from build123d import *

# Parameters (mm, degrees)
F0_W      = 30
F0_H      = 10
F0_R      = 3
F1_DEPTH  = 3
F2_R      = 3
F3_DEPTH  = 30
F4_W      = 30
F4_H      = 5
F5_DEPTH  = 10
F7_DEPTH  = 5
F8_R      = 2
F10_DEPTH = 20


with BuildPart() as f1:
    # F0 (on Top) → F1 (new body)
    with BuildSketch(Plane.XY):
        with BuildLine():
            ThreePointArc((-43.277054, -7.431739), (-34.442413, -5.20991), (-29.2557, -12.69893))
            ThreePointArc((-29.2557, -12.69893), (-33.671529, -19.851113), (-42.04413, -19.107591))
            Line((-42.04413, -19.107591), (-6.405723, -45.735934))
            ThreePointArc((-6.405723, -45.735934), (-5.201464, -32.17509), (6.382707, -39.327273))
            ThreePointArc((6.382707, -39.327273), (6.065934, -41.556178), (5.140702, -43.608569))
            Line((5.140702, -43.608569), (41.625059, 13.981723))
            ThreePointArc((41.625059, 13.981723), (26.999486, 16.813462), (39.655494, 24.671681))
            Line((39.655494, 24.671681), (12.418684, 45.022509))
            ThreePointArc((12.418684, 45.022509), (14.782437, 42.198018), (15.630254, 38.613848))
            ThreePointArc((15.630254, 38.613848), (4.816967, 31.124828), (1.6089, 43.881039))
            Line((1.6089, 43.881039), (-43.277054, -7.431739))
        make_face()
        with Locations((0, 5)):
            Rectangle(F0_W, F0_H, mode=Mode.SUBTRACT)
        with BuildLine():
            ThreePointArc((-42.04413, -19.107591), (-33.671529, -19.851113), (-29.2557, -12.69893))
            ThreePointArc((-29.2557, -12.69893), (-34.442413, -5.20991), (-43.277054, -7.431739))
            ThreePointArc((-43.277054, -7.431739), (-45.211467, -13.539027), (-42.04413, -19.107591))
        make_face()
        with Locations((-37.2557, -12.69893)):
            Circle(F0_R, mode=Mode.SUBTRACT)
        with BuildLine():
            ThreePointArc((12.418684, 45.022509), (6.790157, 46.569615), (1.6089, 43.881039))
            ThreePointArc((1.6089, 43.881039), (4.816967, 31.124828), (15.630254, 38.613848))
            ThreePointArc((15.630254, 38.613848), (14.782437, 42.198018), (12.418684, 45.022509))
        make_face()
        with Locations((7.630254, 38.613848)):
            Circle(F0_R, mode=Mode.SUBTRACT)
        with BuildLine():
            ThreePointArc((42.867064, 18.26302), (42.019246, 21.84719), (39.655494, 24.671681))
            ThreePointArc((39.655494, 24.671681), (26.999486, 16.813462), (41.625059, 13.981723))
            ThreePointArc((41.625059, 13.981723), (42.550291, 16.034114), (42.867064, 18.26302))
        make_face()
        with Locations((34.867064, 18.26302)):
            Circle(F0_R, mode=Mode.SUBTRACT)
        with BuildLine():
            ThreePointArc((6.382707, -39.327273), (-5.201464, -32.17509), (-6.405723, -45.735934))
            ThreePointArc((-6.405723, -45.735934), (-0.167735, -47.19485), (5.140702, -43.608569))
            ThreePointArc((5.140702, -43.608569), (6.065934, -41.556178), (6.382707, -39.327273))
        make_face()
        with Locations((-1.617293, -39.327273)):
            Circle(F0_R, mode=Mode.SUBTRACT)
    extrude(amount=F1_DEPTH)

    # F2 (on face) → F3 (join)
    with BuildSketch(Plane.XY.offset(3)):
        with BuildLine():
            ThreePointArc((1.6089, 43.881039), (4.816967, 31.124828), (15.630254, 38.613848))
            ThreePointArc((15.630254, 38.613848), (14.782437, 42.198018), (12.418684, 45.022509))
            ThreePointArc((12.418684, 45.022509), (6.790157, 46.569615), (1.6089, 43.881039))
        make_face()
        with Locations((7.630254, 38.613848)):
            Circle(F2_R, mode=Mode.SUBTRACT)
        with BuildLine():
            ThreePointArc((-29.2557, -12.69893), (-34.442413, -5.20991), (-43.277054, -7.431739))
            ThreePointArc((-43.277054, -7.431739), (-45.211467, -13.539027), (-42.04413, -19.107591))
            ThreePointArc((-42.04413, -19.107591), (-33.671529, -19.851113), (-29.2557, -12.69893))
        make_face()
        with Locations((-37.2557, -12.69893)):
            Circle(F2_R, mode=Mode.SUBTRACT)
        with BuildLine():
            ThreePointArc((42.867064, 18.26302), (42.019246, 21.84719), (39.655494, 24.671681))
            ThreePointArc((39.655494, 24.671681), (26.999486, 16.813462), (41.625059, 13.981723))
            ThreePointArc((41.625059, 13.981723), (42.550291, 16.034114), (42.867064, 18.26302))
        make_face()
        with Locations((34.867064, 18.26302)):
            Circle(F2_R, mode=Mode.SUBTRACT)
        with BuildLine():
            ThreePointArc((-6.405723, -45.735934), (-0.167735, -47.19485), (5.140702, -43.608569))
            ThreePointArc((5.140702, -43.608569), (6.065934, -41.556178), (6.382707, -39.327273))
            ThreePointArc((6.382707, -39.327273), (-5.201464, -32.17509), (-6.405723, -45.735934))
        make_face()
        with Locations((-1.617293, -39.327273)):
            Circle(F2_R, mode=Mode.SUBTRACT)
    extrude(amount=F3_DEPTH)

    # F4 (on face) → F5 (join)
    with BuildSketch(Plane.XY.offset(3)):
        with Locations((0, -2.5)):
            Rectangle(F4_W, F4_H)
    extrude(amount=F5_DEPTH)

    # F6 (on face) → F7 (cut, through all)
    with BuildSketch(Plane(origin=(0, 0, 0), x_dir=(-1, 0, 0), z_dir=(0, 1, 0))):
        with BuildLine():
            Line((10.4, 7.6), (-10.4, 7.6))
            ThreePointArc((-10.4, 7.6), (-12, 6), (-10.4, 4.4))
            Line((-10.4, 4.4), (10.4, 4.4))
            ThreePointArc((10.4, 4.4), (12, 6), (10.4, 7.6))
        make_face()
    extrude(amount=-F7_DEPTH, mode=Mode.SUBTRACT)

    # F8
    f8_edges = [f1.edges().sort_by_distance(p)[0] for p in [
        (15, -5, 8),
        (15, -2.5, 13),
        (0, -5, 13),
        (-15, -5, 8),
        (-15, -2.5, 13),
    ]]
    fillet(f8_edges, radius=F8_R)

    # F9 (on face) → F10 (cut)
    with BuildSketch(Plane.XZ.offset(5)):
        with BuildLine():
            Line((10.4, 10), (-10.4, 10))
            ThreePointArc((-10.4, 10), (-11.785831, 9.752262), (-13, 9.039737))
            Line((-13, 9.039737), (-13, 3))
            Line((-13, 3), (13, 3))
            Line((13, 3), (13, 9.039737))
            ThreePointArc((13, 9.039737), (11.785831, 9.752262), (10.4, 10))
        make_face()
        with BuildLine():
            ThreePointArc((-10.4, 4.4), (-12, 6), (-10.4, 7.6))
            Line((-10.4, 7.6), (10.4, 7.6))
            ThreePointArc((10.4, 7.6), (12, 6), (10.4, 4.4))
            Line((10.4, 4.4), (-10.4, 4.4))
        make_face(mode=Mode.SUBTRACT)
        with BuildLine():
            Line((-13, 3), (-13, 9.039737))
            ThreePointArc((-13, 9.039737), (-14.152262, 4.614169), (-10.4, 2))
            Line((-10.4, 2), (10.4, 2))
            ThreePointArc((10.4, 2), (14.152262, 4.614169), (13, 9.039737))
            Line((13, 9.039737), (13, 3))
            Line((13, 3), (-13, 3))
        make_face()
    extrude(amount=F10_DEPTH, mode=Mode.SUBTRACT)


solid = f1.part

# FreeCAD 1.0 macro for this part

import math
import FreeCAD as App
import Part
import Sketcher

V = App.Vector


def edges_at(feature, points):
    """Names of the edges that pass closest to the given points."""
    edges = feature.Shape.Edges
    near = lambda p: min(range(len(edges)), key=lambda i: edges[i].distToShape(Part.Vertex(*p))[0])
    return sorted({f"Edge{near(p) + 1}" for p in points})

doc = App.newDocument("Part")
body = doc.addObject("PartDesign::Body", "Body")

# Sketch on XY plane
sketch1 = body.newObject("Sketcher::SketchObject", "Sketch")
sketch1.AttachmentSupport = (doc.getObject("XY_Plane"), [""])
sketch1.MapMode = "FlatFace"
sketch1.addGeometry(Part.LineSegment(V(1.6, 43.9, 0), V(-43.3, -7.4, 0)), False)
sketch1.addGeometry(Part.ArcOfCircle(Part.Circle(V(-37.3, -12.7, 0), V(0, 0, 1), 8), math.radians(139), math.radians(233)), False)
sketch1.addGeometry(Part.LineSegment(V(-42, -19.1, 0), V(-6.4, -45.7, 0)), False)
sketch1.addGeometry(Part.ArcOfCircle(Part.Circle(V(-1.6, -39.3, 0), V(0, 0, 1), 8), math.radians(-127), math.radians(-32)), False)
sketch1.addGeometry(Part.LineSegment(V(5.1, -43.6, 0), V(41.6, 14, 0)), False)
sketch1.addGeometry(Part.ArcOfCircle(Part.Circle(V(34.9, 18.3, 0), V(0, 0, 1), 8), math.radians(-32), math.radians(0)), False)
sketch1.addGeometry(Part.ArcOfCircle(Part.Circle(V(34.9, 18.3, 0), V(0, 0, 1), 8), math.radians(0), math.radians(53)), False)
sketch1.addGeometry(Part.LineSegment(V(39.7, 24.7, 0), V(12.4, 45, 0)), False)
sketch1.addGeometry(Part.ArcOfCircle(Part.Circle(V(7.6, 38.6, 0), V(0, 0, 1), 8), math.radians(53), math.radians(139)), False)
sketch1.addGeometry(Part.Circle(V(-1.6, -39.3, 0), V(0, 0, 1), 3), False)
sketch1.addGeometry(Part.Circle(V(-37.3, -12.7, 0), V(0, 0, 1), 3), False)
sketch1.addGeometry(Part.LineSegment(V(15, 0, 0), V(-15, 0, 0)), False)
sketch1.addGeometry(Part.LineSegment(V(-15, 0, 0), V(-15, 10, 0)), False)
sketch1.addGeometry(Part.LineSegment(V(-15, 10, 0), V(15, 10, 0)), False)
sketch1.addGeometry(Part.LineSegment(V(15, 10, 0), V(15, 0, 0)), False)
sketch1.addGeometry(Part.Circle(V(34.9, 18.3, 0), V(0, 0, 1), 3), False)
sketch1.addGeometry(Part.Circle(V(7.6, 38.6, 0), V(0, 0, 1), 3), False)
sketch1.addConstraint(Sketcher.Constraint("Tangent", 0, 2, 1, 1))
sketch1.addConstraint(Sketcher.Constraint("Tangent", 1, 2, 2, 1))
sketch1.addConstraint(Sketcher.Constraint("Tangent", 2, 2, 3, 1))
sketch1.addConstraint(Sketcher.Constraint("Tangent", 3, 2, 4, 1))
sketch1.addConstraint(Sketcher.Constraint("Tangent", 4, 2, 5, 1))
sketch1.addConstraint(Sketcher.Constraint("Tangent", 5, 2, 6, 1))
sketch1.addConstraint(Sketcher.Constraint("Tangent", 6, 2, 7, 1))
sketch1.addConstraint(Sketcher.Constraint("Tangent", 7, 2, 8, 1))
sketch1.addConstraint(Sketcher.Constraint("Tangent", 8, 2, 0, 1))
sketch1.addConstraint(Sketcher.Constraint("Coincident", 11, 2, 12, 1))
sketch1.addConstraint(Sketcher.Constraint("Coincident", 12, 2, 13, 1))
sketch1.addConstraint(Sketcher.Constraint("Coincident", 13, 2, 14, 1))
sketch1.addConstraint(Sketcher.Constraint("Coincident", 14, 2, 11, 1))
sketch1.addConstraint(Sketcher.Constraint("Horizontal", 11))
sketch1.addConstraint(Sketcher.Constraint("Vertical", 12))
sketch1.addConstraint(Sketcher.Constraint("Horizontal", 13))
sketch1.addConstraint(Sketcher.Constraint("Vertical", 14))
sketch1.addConstraint(Sketcher.Constraint("Coincident", 9, 3, 3, 3))
sketch1.addConstraint(Sketcher.Constraint("Coincident", 10, 3, 1, 3))
sketch1.addConstraint(Sketcher.Constraint("Coincident", 15, 3, 5, 3))
sketch1.addConstraint(Sketcher.Constraint("Coincident", 16, 3, 8, 3))
sketch1.addConstraint(Sketcher.Constraint("Equal", 1, 3))
sketch1.addConstraint(Sketcher.Constraint("Equal", 3, 5))
sketch1.addConstraint(Sketcher.Constraint("Equal", 5, 8))
sketch1.addConstraint(Sketcher.Constraint("Equal", 9, 10))
sketch1.addConstraint(Sketcher.Constraint("Equal", 10, 15))
sketch1.addConstraint(Sketcher.Constraint("Equal", 15, 16))
sketch1.addConstraint(Sketcher.Constraint("Symmetric", 11, 2, 14, 2, -1, 1))
sketch1.addConstraint(Sketcher.Constraint("Parallel", 2, 7))
sketch1.addConstraint(Sketcher.Constraint("Horizontal", 15, 3, 5, 2))
sketch1.addConstraint(Sketcher.Constraint("Equal", 0, 4))
sketch1.addConstraint(Sketcher.Constraint("Diameter", 9, 6.0))
sketch1.addConstraint(Sketcher.Constraint("Radius", 1, 8.000001))
sketch1.addConstraint(Sketcher.Constraint("DistanceX", 11, 2, 11, 1, 30.0))
sketch1.addConstraint(Sketcher.Constraint("DistanceY", 12, 1, 12, 2, 10.0))
sketch1.addConstraint(Sketcher.Constraint("Distance", 7, 34.0))
sketch1.addConstraint(Sketcher.Constraint("Radius", 6, 8.000009))
sketch1.addConstraint(Sketcher.Constraint("DistanceX", 1, 3, -1, 1, 37.255698))
sketch1.addConstraint(Sketcher.Constraint("DistanceX", -1, 1, 8, 2, 1.6089))
sketch1.addConstraint(Sketcher.Constraint("DistanceX", 8, 3, 6, 3, 27.236801))
sketch1.addConstraint(Sketcher.Constraint("DistanceX", 1, 3, 3, 2, 42.3964))
sketch1.addConstraint(Sketcher.Constraint("DistanceY", 1, 3, -1, 1, 12.698929))
pad1 = body.newObject("PartDesign::Pad", "Pad")
pad1.Profile = sketch1
pad1.Length = 3

# Sketch on XY plane
sketch2 = body.newObject("Sketcher::SketchObject", "Sketch001")
sketch2.AttachmentSupport = (doc.getObject("XY_Plane"), [""])
sketch2.MapMode = "FlatFace"
sketch2.AttachmentOffset = App.Placement(V(0, 0, 3), App.Rotation())
sketch2.addGeometry(Part.ArcOfCircle(Part.Circle(V(7.6, 38.6, 0), V(0, 0, 1), 8), math.radians(139), math.radians(360)), False)
sketch2.addGeometry(Part.ArcOfCircle(Part.Circle(V(7.6, 38.6, 0), V(0, 0, 1), 8), math.radians(0), math.radians(53)), False)
sketch2.addGeometry(Part.ArcOfCircle(Part.Circle(V(7.6, 38.6, 0), V(0, 0, 1), 8), math.radians(53), math.radians(139)), False)
sketch2.addGeometry(Part.Circle(V(7.6, 38.6, 0), V(0, 0, 1), 3), False)
sketch2.addGeometry(Part.ArcOfCircle(Part.Circle(V(-37.3, -12.7, 0), V(0, 0, 1), 8), math.radians(0), math.radians(139)), False)
sketch2.addGeometry(Part.ArcOfCircle(Part.Circle(V(-37.3, -12.7, 0), V(0, 0, 1), 8), math.radians(139), math.radians(233)), False)
sketch2.addGeometry(Part.ArcOfCircle(Part.Circle(V(-37.3, -12.7, 0), V(0, 0, 1), 8), math.radians(-127), math.radians(0)), False)
sketch2.addGeometry(Part.Circle(V(-37.3, -12.7, 0), V(0, 0, 1), 3), False)
sketch2.addGeometry(Part.ArcOfCircle(Part.Circle(V(34.9, 18.3, 0), V(0, 0, 1), 8), math.radians(0), math.radians(53)), False)
sketch2.addGeometry(Part.ArcOfCircle(Part.Circle(V(34.9, 18.3, 0), V(0, 0, 1), 8), math.radians(53), math.radians(328)), False)
sketch2.addGeometry(Part.ArcOfCircle(Part.Circle(V(34.9, 18.3, 0), V(0, 0, 1), 8), math.radians(-32), math.radians(0)), False)
sketch2.addGeometry(Part.Circle(V(34.9, 18.3, 0), V(0, 0, 1), 3), False)
sketch2.addGeometry(Part.ArcOfCircle(Part.Circle(V(-1.6, -39.3, 0), V(0, 0, 1), 8), math.radians(-127), math.radians(-32)), False)
sketch2.addGeometry(Part.ArcOfCircle(Part.Circle(V(-1.6, -39.3, 0), V(0, 0, 1), 8), math.radians(-32), math.radians(0)), False)
sketch2.addGeometry(Part.ArcOfCircle(Part.Circle(V(-1.6, -39.3, 0), V(0, 0, 1), 8), math.radians(0), math.radians(233)), False)
sketch2.addGeometry(Part.Circle(V(-1.6, -39.3, 0), V(0, 0, 1), 3), False)
sketch2.addConstraint(Sketcher.Constraint("Tangent", 0, 2, 1, 1))
sketch2.addConstraint(Sketcher.Constraint("Tangent", 1, 2, 2, 1))
sketch2.addConstraint(Sketcher.Constraint("Tangent", 2, 2, 0, 1))
sketch2.addConstraint(Sketcher.Constraint("Tangent", 4, 2, 5, 1))
sketch2.addConstraint(Sketcher.Constraint("Tangent", 5, 2, 6, 1))
sketch2.addConstraint(Sketcher.Constraint("Tangent", 6, 2, 4, 1))
sketch2.addConstraint(Sketcher.Constraint("Tangent", 8, 2, 9, 1))
sketch2.addConstraint(Sketcher.Constraint("Tangent", 9, 2, 10, 1))
sketch2.addConstraint(Sketcher.Constraint("Tangent", 10, 2, 8, 1))
sketch2.addConstraint(Sketcher.Constraint("Tangent", 12, 2, 13, 1))
sketch2.addConstraint(Sketcher.Constraint("Tangent", 13, 2, 14, 1))
sketch2.addConstraint(Sketcher.Constraint("Tangent", 14, 2, 12, 1))
sketch2.addConstraint(Sketcher.Constraint("Coincident", 3, 3, 0, 3))
sketch2.addConstraint(Sketcher.Constraint("Coincident", 7, 3, 4, 3))
sketch2.addConstraint(Sketcher.Constraint("Coincident", 11, 3, 8, 3))
sketch2.addConstraint(Sketcher.Constraint("Coincident", 15, 3, 12, 3))
sketch2.addConstraint(Sketcher.Constraint("Equal", 2, 4))
sketch2.addConstraint(Sketcher.Constraint("Equal", 3, 7))
sketch2.addConstraint(Sketcher.Constraint("Equal", 6, 9))
sketch2.addConstraint(Sketcher.Constraint("Equal", 7, 11))
sketch2.addConstraint(Sketcher.Constraint("Equal", 10, 12))
sketch2.addConstraint(Sketcher.Constraint("Equal", 11, 15))
sketch2.addConstraint(Sketcher.Constraint("Horizontal", 3, 3, 0, 2))
sketch2.addConstraint(Sketcher.Constraint("Horizontal", 7, 3, 6, 2))
sketch2.addConstraint(Sketcher.Constraint("Horizontal", 11, 3, 10, 2))
sketch2.addConstraint(Sketcher.Constraint("Horizontal", 15, 3, 13, 2))
sketch2.addConstraint(Sketcher.Constraint("Diameter", 3, 6.0))
sketch2.addConstraint(Sketcher.Constraint("Radius", 0, 8.0))
sketch2.addConstraint(Sketcher.Constraint("DistanceX", 4, 3, -1, 1, 37.2557))
sketch2.addConstraint(Sketcher.Constraint("DistanceX", -1, 1, 2, 2, 1.6089))
sketch2.addConstraint(Sketcher.Constraint("DistanceX", 2, 3, 8, 3, 27.236801))
sketch2.addConstraint(Sketcher.Constraint("DistanceY", 4, 3, -1, 1, 12.69893))
sketch2.addConstraint(Sketcher.Constraint("DistanceY", -1, 1, 9, 3, 18.26302))
sketch2.addConstraint(Sketcher.Constraint("DistanceY", 12, 3, -1, 1, 39.327271))
sketch2.addConstraint(Sketcher.Constraint("DistanceY", -1, 1, 1, 2, 45.022509))
sketch2.addConstraint(Sketcher.Constraint("DistanceY", -1, 1, 2, 2, 43.881039))
sketch2.addConstraint(Sketcher.Constraint("DistanceY", 4, 2, -1, 1, 7.431739))
sketch2.addConstraint(Sketcher.Constraint("DistanceX", 5, 2, -1, 1, 42.04413))
sketch2.addConstraint(Sketcher.Constraint("DistanceY", -1, 1, 8, 2, 24.671681))
sketch2.addConstraint(Sketcher.Constraint("DistanceX", -1, 1, 9, 2, 41.625059))
sketch2.addConstraint(Sketcher.Constraint("DistanceY", 12, 2, -1, 1, 43.608569))
sketch2.addConstraint(Sketcher.Constraint("DistanceX", 5, 3, 1, 3, 44.885951))
sketch2.addConstraint(Sketcher.Constraint("DistanceX", 12, 3, 8, 3, 36.484349))
sketch2.addConstraint(Sketcher.Constraint("DistanceX", 14, 2, 15, 3, 4.78843))
pad2 = body.newObject("PartDesign::Pad", "Pad001")
pad2.Profile = sketch2
pad2.Length = 30

# Sketch on XY plane
sketch3 = body.newObject("Sketcher::SketchObject", "Sketch002")
sketch3.AttachmentSupport = (doc.getObject("XY_Plane"), [""])
sketch3.MapMode = "FlatFace"
sketch3.AttachmentOffset = App.Placement(V(0, 0, 3), App.Rotation())
sketch3.addGeometry(Part.LineSegment(V(-15, 0, 0), V(-15, -5, 0)), False)
sketch3.addGeometry(Part.LineSegment(V(-15, -5, 0), V(15, -5, 0)), False)
sketch3.addGeometry(Part.LineSegment(V(15, -5, 0), V(15, 0, 0)), False)
sketch3.addGeometry(Part.LineSegment(V(15, 0, 0), V(-15, 0, 0)), False)
sketch3.addConstraint(Sketcher.Constraint("Coincident", 0, 2, 1, 1))
sketch3.addConstraint(Sketcher.Constraint("Coincident", 1, 2, 2, 1))
sketch3.addConstraint(Sketcher.Constraint("Coincident", 2, 2, 3, 1))
sketch3.addConstraint(Sketcher.Constraint("Coincident", 3, 2, 0, 1))
sketch3.addConstraint(Sketcher.Constraint("Vertical", 0))
sketch3.addConstraint(Sketcher.Constraint("Horizontal", 1))
sketch3.addConstraint(Sketcher.Constraint("Vertical", 2))
sketch3.addConstraint(Sketcher.Constraint("Horizontal", 3))
sketch3.addConstraint(Sketcher.Constraint("Symmetric", 2, 2, 3, 2, -1, 1))
sketch3.addConstraint(Sketcher.Constraint("DistanceX", 1, 1, 1, 2, 30.0))
sketch3.addConstraint(Sketcher.Constraint("DistanceY", 0, 2, 0, 1, 5.0))
pad3 = body.newObject("PartDesign::Pad", "Pad002")
pad3.Profile = sketch3
pad3.Length = 10

# Sketch on XZ plane
sketch4 = body.newObject("Sketcher::SketchObject", "Sketch003")
sketch4.AttachmentSupport = (doc.getObject("XZ_Plane"), [""])
sketch4.MapMode = "FlatFace"
sketch4.addGeometry(Part.LineSegment(V(-10.4, 7.6, 0), V(10.4, 7.6, 0)), False)
sketch4.addGeometry(Part.ArcOfCircle(Part.Circle(V(10.4, 6, 0), V(0, 0, 1), 1.6), math.radians(-90), math.radians(90)), False)
sketch4.addGeometry(Part.LineSegment(V(10.4, 4.4, 0), V(-10.4, 4.4, 0)), False)
sketch4.addGeometry(Part.ArcOfCircle(Part.Circle(V(-10.4, 6, 0), V(0, 0, 1), 1.6), math.radians(90), math.radians(270)), False)
sketch4.addConstraint(Sketcher.Constraint("Tangent", 0, 2, 1, 2))
sketch4.addConstraint(Sketcher.Constraint("Tangent", 1, 1, 2, 1))
sketch4.addConstraint(Sketcher.Constraint("Tangent", 2, 2, 3, 2))
sketch4.addConstraint(Sketcher.Constraint("Tangent", 3, 1, 0, 1))
sketch4.addConstraint(Sketcher.Constraint("Horizontal", 0))
sketch4.addConstraint(Sketcher.Constraint("Horizontal", 2))
sketch4.addConstraint(Sketcher.Constraint("Radius", 1, 1.6))
sketch4.addConstraint(Sketcher.Constraint("DistanceX", 0, 1, 0, 2, 20.8))
sketch4.addConstraint(Sketcher.Constraint("DistanceY", -1, 1, 1, 3, 6.0))
sketch4.addConstraint(Sketcher.Constraint("DistanceX", -1, 1, 1, 3, 10.4))
pocket1 = body.newObject("PartDesign::Pocket", "Pocket")
pocket1.Profile = sketch4
pocket1.Length = 5
pocket1.Reversed = True
doc.recompute()

fillet = body.newObject("PartDesign::Fillet", "Fillet")
fillet.Base = (pocket1, edges_at(pocket1, [
    (15, -5, 8),
    (15, -2.5, 13),
    (0, -5, 13),
    (-15, -5, 8),
    (-15, -2.5, 13),
]))
fillet.Radius = 2

# Sketch on XZ plane
sketch5 = body.newObject("Sketcher::SketchObject", "Sketch004")
sketch5.AttachmentSupport = (doc.getObject("XZ_Plane"), [""])
sketch5.MapMode = "FlatFace"
sketch5.AttachmentOffset = App.Placement(V(0, 0, 5), App.Rotation())
sketch5.addGeometry(Part.LineSegment(V(10.4, 10, 0), V(-10.4, 10, 0)), False)
sketch5.addGeometry(Part.ArcOfCircle(Part.Circle(V(-10.4, 6, 0), V(0, 0, 1), 4), math.radians(90), math.radians(131)), False)
sketch5.addGeometry(Part.ArcOfCircle(Part.Circle(V(-10.4, 6, 0), V(0, 0, 1), 4), math.radians(131), math.radians(270)), False)
sketch5.addGeometry(Part.LineSegment(V(-10.4, 2, 0), V(10.4, 2, 0)), False)
sketch5.addGeometry(Part.ArcOfCircle(Part.Circle(V(10.4, 6, 0), V(0, 0, 1), 4), math.radians(-90), math.radians(49)), False)
sketch5.addGeometry(Part.ArcOfCircle(Part.Circle(V(10.4, 6, 0), V(0, 0, 1), 4), math.radians(49), math.radians(90)), False)
sketch5.addGeometry(Part.LineSegment(V(10.4, 4.4, 0), V(-10.4, 4.4, 0)), False)
sketch5.addGeometry(Part.ArcOfCircle(Part.Circle(V(-10.4, 6, 0), V(0, 0, 1), 1.6), math.radians(90), math.radians(270)), False)
sketch5.addGeometry(Part.LineSegment(V(-10.4, 7.6, 0), V(10.4, 7.6, 0)), False)
sketch5.addGeometry(Part.ArcOfCircle(Part.Circle(V(10.4, 6, 0), V(0, 0, 1), 1.6), math.radians(-90), math.radians(90)), False)
sketch5.addConstraint(Sketcher.Constraint("Tangent", 0, 2, 1, 1))
sketch5.addConstraint(Sketcher.Constraint("Tangent", 1, 2, 2, 1))
sketch5.addConstraint(Sketcher.Constraint("Tangent", 2, 2, 3, 1))
sketch5.addConstraint(Sketcher.Constraint("Tangent", 3, 2, 4, 1))
sketch5.addConstraint(Sketcher.Constraint("Tangent", 4, 2, 5, 1))
sketch5.addConstraint(Sketcher.Constraint("Tangent", 5, 2, 0, 1))
sketch5.addConstraint(Sketcher.Constraint("Tangent", 6, 2, 7, 2))
sketch5.addConstraint(Sketcher.Constraint("Tangent", 7, 1, 8, 1))
sketch5.addConstraint(Sketcher.Constraint("Tangent", 8, 2, 9, 2))
sketch5.addConstraint(Sketcher.Constraint("Tangent", 9, 1, 6, 1))
sketch5.addConstraint(Sketcher.Constraint("Horizontal", 0))
sketch5.addConstraint(Sketcher.Constraint("Horizontal", 3))
sketch5.addConstraint(Sketcher.Constraint("Horizontal", 6))
sketch5.addConstraint(Sketcher.Constraint("Horizontal", 8))
sketch5.addConstraint(Sketcher.Constraint("Coincident", 7, 3, 1, 3))
sketch5.addConstraint(Sketcher.Constraint("Coincident", 9, 3, 4, 3))
sketch5.addConstraint(Sketcher.Constraint("Equal", 2, 4))
sketch5.addConstraint(Sketcher.Constraint("Symmetric", 1, 2, 4, 2, -2))
sketch5.addConstraint(Sketcher.Constraint("Radius", 2, 4.0))
sketch5.addConstraint(Sketcher.Constraint("Radius", 7, 1.6))
sketch5.addConstraint(Sketcher.Constraint("DistanceX", 0, 2, 0, 1, 20.8))
sketch5.addConstraint(Sketcher.Constraint("DistanceY", -1, 1, 2, 3, 6.0))
sketch5.addConstraint(Sketcher.Constraint("DistanceX", 1, 2, -1, 1, 13.0))
pocket2 = body.newObject("PartDesign::Pocket", "Pocket001")
pocket2.Profile = sketch5
pocket2.Length = 20
pocket2.Reversed = True

doc.recompute()
